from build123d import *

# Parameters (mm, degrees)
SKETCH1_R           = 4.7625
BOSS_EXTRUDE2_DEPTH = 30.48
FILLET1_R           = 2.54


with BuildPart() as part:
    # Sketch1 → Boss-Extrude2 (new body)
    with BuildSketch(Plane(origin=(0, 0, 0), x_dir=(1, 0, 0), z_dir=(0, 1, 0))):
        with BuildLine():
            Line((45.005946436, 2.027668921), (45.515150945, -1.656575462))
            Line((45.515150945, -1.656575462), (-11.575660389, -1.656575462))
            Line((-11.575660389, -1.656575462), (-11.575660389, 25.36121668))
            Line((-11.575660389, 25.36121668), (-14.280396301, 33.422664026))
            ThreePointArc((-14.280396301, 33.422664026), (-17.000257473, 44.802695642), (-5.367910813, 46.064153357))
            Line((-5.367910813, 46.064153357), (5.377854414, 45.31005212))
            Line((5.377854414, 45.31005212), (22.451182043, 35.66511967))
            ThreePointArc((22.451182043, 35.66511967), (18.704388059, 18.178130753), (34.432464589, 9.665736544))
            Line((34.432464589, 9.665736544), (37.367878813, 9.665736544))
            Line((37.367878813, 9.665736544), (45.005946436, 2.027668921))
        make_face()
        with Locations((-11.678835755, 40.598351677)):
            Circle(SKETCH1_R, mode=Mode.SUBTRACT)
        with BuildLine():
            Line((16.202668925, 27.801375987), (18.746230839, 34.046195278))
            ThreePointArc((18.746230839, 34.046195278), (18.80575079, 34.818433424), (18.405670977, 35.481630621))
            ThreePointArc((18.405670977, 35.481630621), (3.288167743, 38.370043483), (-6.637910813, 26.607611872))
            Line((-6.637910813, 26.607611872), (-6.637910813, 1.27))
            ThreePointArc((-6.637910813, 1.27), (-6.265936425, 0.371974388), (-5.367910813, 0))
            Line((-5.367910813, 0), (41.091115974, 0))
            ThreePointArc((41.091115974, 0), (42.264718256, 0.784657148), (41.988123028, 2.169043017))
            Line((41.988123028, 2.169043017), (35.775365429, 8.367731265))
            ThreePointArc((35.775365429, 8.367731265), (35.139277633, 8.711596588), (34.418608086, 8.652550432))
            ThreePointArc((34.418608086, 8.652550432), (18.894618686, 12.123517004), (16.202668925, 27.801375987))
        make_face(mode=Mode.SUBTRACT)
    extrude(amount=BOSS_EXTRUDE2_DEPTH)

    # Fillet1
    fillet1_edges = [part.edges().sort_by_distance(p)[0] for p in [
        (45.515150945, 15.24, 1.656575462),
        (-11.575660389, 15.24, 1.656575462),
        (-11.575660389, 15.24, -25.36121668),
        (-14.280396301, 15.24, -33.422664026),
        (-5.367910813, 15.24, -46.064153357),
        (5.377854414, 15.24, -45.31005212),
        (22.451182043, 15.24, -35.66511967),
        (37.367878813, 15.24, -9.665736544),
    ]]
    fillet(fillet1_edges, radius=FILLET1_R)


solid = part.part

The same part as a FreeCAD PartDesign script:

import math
import FreeCAD as App
import Part
import Sketcher
Q = App.Units.Quantity


def edges_at(feature, points):
    """Names of the edges that pass closest to the given points."""
    edges = feature.Shape.Edges
    near = lambda p: min(range(len(edges)), key=lambda i: edges[i].distToShape(Part.Vertex(*p))[0])
    return sorted({f"Edge{near(p) + 1}" for p in points})

doc = App.newDocument("Part")
body = doc.addObject("PartDesign::Body", "Body")

# Sketch on XZ plane
sketch1 = body.newObject("Sketcher::SketchObject", "Sketch")
sketch1.AttachmentSupport = (doc.getObject("XZ_Plane"), [""])
sketch1.MapMode = "FlatFace"
sketch1.addGeometry([
    Part.LineSegment(App.Vector(45.5, 1.7, 0), App.Vector(45, -2, 0)),  # 0
    Part.LineSegment(App.Vector(45, -2, 0), App.Vector(37.4, -9.7, 0)),  # 1
    Part.LineSegment(App.Vector(37.4, -9.7, 0), App.Vector(34.4, -9.7, 0)),  # 2
    Part.ArcOfCircle(Part.Circle(App.Vector(32.3, -24.4, 0), App.Vector(0, 0, 1), 14.9), math.radians(82), math.radians(229)),  # 3
    Part.LineSegment(App.Vector(22.5, -35.7, 0), App.Vector(5.4, -45.3, 0)),  # 4
    Part.LineSegment(App.Vector(5.4, -45.3, 0), App.Vector(-5.4, -46.1, 0)),  # 5
    Part.ArcOfCircle(Part.Circle(App.Vector(-10.6, -40.3, 0), App.Vector(0, 0, 1), 7.8), math.radians(118), math.radians(312)),  # 6
    Part.LineSegment(App.Vector(-14.3, -33.4, 0), App.Vector(-11.6, -25.4, 0)),  # 7
    Part.LineSegment(App.Vector(-11.6, -25.4, 0), App.Vector(-11.6, 1.7, 0)),  # 8
    Part.LineSegment(App.Vector(-11.6, 1.7, 0), App.Vector(45.5, 1.7, 0)),  # 9
    Part.ArcOfCircle(Part.Circle(App.Vector(29.2, -22, 0), App.Vector(0, 0, 1), 14.3), math.radians(69), math.radians(204)),  # 10
    Part.ArcOfCircle(Part.Circle(App.Vector(34.9, -7.5, 0), App.Vector(0, 0, 1), 1.3), math.radians(-111), math.radians(-45)),  # 11
    Part.LineSegment(App.Vector(35.8, -8.4, 0), App.Vector(42, -2.2, 0)),  # 12
    Part.ArcOfCircle(Part.Circle(App.Vector(41.1, -1.3, 0), App.Vector(0, 0, 1), 1.3), math.radians(-45), math.radians(90)),  # 13
    Part.LineSegment(App.Vector(41.1, 0, 0), App.Vector(-5.4, 0, 0)),  # 14
    Part.ArcOfCircle(Part.Circle(App.Vector(-5.4, -1.3, 0), App.Vector(0, 0, 1), 1.3), math.radians(90), math.radians(180)),  # 15
    Part.LineSegment(App.Vector(-6.6, -1.3, 0), App.Vector(-6.6, -26.6, 0)),  # 16
    Part.ArcOfCircle(Part.Circle(App.Vector(8.4, -24, 0), App.Vector(0, 0, 1), 15.2), math.radians(-170), math.radians(-49)),  # 17
    Part.ArcOfCircle(Part.Circle(App.Vector(17.6, -34.5, 0), App.Vector(0, 0, 1), 1.3), math.radians(-49), math.radians(22)),  # 18
    Part.LineSegment(App.Vector(18.7, -34, 0), App.Vector(16.2, -27.8, 0)),  # 19
    Part.Circle(App.Vector(-11.7, -40.6, 0), App.Vector(0, 0, 1), 4.8),  # 20
], False)
sketch1.addConstraint([
    Sketcher.Constraint("Coincident", 0, 2, 1, 1),
    Sketcher.Constraint("Coincident", 1, 2, 2, 1),
    Sketcher.Constraint("Coincident", 2, 2, 3, 1),
    Sketcher.Constraint("Coincident", 3, 2, 4, 1),
    Sketcher.Constraint("Coincident", 4, 2, 5, 1),
    Sketcher.Constraint("Coincident", 5, 2, 6, 2),
    Sketcher.Constraint("Coincident", 6, 1, 7, 1),
    Sketcher.Constraint("Coincident", 7, 2, 8, 1),
    Sketcher.Constraint("Coincident", 8, 2, 9, 1),
    Sketcher.Constraint("Coincident", 9, 2, 0, 1),
    Sketcher.Constraint("Tangent", 10, 1, 11, 1),
    Sketcher.Constraint("Tangent", 11, 2, 12, 1),
    Sketcher.Constraint("Tangent", 12, 2, 13, 1),
    Sketcher.Constraint("Tangent", 13, 2, 14, 1),
    Sketcher.Constraint("Tangent", 14, 2, 15, 1),
    Sketcher.Constraint("Tangent", 15, 2, 16, 1),
    Sketcher.Constraint("Coincident", 16, 2, 17, 1),
    Sketcher.Constraint("Tangent", 17, 2, 18, 1),
    Sketcher.Constraint("Tangent", 18, 2, 19, 1),
    Sketcher.Constraint("Coincident", 19, 2, 10, 2),
    Sketcher.Constraint("Horizontal", 2),
    Sketcher.Constraint("Vertical", 8),
    Sketcher.Constraint("Horizontal", 9),
    Sketcher.Constraint("Horizontal", 14),
    Sketcher.Constraint("Vertical", 16),
    Sketcher.Constraint("Equal", 11, 13),
    Sketcher.Constraint("Equal", 13, 15),
    Sketcher.Constraint("Equal", 15, 18),
    Sketcher.Constraint("PointOnObject", 13, 2, -1),
    Sketcher.Constraint("Vertical", 15, 3, 5, 2),
    Sketcher.Constraint("Radius", 17, Q("0.6 in")),
    Sketcher.Constraint("Radius", 11, Q("0.05 in")),
    Sketcher.Constraint("Diameter", 20, Q("0.375 in")),
    Sketcher.Constraint("Angle", 1, Q("-135 deg")),
    Sketcher.Constraint("Radius", 10, Q("0.5625 in")),
    Sketcher.Constraint("DistanceY", 10, 3, -1, 1, Q("0.865 in")),
    Sketcher.Constraint("Radius", 3, 14.915319),
    Sketcher.Constraint("Radius", 6, 7.79606),
    Sketcher.Constraint("DistanceY", 3, 3, 1, 2, Q("0.5809001 in")),
    Sketcher.Constraint("DistanceY", 4, 2, 20, 3, Q("0.1855 in")),
    Sketcher.Constraint("DistanceX", 9, 1, 9, 2, 57.090811),
    Sketcher.Constraint("DistanceY", 16, 2, 16, 1, 25.337612),
    Sketcher.Constraint("DistanceY", 3, 3, -1, 1, 24.420599),
    Sketcher.Constraint("DistanceX", 10, 3, 13, 3, 11.844699),
    Sketcher.Constraint("DistanceX", 20, 3, 6, 3, 1.0503),
    Sketcher.Constraint("DistanceX", 4, 2, 18, 3, 12.192198),
    Sketcher.Constraint("DistanceY", 5, 2, 20, 3, 5.465802),
    Sketcher.Constraint("DistanceX", 2, 2, 11, 2, 1.342901),
    Sketcher.Constraint("DistanceY", 6, 3, 16, 2, 13.702901),
    Sketcher.Constraint("Distance", 1, 10.801859),
    Sketcher.Constraint("Distance", 7, 8.503089),
    Sketcher.Constraint("DistanceX", 2, 2, 2, 1, 2.935414),
    Sketcher.Constraint("DistanceX", 14, 2, 14, 1, 46.459027),
    Sketcher.Constraint("DistanceY", 8, 1, 8, 2, 27.017792),
    Sketcher.Constraint("DistanceX", -1, 1, 11, 3, 34.878358),
    Sketcher.Constraint("DistanceY", 11, 3, -1, 1, 7.468688),
    Sketcher.Constraint("DistanceX", -1, 1, 17, 3, 8.378249),
    Sketcher.Constraint("DistanceY", 18, 3, -1, 1, 34.525262),
    Sketcher.Constraint("DistanceY", 20, 3, -1, 1, 40.598352),
    Sketcher.Constraint("DistanceY", 3, 2, -1, 1, 35.66512),
    Sketcher.Constraint("DistanceX", 7, 2, -1, 1, 11.57566),
    Sketcher.Constraint("DistanceX", -1, 1, 19, 2, 16.202669),
    Sketcher.Constraint("DistanceX", 6, 1, 20, 3, 2.601561),
])
pad1 = body.newObject("PartDesign::Pad", "Pad")
pad1.Profile = sketch1
pad1.Length = Q("1.2 in")
pad1.Reversed = True
doc.recompute()

fillet = body.newObject("PartDesign::Fillet", "Fillet")
fillet.Base = (pad1, edges_at(pad1, [
    (45.515, 15.24, 1.657),
    (-11.576, 15.24, 1.657),
    (-11.576, 15.24, -25.361),
    (-14.28, 15.24, -33.423),
    (-5.368, 15.24, -46.064),
    (5.378, 15.24, -45.31),
    (22.451, 15.24, -35.665),
    (37.368, 15.24, -9.666),
]))
fillet.Radius = Q("0.1 in")

doc.recompute()
